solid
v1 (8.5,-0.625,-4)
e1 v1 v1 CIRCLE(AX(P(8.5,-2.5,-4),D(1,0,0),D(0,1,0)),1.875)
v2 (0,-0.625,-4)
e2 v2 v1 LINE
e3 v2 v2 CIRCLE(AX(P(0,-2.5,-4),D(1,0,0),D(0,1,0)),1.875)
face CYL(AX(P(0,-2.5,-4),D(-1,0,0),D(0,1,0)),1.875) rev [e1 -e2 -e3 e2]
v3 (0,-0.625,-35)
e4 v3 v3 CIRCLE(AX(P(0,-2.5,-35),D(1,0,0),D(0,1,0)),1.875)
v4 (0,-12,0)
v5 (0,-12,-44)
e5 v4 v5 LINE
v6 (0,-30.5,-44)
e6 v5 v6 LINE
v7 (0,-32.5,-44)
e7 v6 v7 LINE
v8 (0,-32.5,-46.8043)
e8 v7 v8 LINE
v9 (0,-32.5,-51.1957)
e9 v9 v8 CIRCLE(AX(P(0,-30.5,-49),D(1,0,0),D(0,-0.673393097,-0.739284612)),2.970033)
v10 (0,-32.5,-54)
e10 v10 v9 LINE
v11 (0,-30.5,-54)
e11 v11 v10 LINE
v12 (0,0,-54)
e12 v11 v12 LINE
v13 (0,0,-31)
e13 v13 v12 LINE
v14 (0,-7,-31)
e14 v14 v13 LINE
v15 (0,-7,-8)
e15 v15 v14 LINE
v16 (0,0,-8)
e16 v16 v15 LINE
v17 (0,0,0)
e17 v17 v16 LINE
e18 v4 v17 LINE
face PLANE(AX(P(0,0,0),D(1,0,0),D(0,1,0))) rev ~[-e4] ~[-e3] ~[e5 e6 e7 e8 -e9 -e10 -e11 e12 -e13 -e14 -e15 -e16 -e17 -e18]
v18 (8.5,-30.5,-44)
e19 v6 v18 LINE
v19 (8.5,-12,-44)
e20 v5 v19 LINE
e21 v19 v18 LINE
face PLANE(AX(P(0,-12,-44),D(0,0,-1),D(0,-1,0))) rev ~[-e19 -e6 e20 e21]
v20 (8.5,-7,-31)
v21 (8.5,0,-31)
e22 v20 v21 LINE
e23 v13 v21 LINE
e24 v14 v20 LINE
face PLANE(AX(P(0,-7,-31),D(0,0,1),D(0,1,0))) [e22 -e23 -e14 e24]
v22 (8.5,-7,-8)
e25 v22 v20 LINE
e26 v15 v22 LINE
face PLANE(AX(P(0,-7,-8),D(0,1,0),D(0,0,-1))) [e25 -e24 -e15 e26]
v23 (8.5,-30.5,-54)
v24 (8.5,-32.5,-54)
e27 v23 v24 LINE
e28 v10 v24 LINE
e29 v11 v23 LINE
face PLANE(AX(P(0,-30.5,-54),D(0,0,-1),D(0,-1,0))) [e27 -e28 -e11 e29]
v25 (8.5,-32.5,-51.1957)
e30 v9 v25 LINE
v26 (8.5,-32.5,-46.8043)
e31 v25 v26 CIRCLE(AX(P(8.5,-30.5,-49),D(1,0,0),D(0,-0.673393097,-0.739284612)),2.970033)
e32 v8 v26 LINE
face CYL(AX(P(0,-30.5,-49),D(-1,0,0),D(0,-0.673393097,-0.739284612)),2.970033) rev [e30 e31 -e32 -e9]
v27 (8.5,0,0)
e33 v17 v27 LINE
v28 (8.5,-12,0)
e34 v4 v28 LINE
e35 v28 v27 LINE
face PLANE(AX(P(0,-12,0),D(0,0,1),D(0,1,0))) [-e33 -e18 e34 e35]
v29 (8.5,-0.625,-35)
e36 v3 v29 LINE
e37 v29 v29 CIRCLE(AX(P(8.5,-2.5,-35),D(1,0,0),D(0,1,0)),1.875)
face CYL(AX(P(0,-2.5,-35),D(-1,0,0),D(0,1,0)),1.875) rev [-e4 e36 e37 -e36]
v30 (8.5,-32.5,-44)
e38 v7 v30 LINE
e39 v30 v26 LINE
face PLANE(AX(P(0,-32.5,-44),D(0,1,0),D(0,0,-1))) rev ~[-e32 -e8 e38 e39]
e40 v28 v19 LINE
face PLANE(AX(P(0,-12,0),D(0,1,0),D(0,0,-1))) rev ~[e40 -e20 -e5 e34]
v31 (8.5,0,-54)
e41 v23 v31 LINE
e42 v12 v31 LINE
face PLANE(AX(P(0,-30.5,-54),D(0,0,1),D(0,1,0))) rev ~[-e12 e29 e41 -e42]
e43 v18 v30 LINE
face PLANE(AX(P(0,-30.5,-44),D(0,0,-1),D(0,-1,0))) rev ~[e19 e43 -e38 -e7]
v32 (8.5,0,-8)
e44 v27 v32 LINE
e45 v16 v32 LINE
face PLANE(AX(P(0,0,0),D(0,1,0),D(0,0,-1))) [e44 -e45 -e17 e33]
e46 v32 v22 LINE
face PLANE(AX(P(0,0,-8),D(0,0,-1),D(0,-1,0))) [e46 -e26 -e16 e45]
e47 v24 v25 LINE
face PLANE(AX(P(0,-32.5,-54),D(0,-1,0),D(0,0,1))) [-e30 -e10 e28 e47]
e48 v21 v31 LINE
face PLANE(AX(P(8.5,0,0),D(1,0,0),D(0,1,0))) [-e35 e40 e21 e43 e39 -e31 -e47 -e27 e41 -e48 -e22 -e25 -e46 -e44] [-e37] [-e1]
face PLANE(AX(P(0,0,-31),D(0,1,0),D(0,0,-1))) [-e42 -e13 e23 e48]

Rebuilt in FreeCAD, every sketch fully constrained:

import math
import FreeCAD as App
import Part
import Sketcher

V = App.Vector
Q = App.Units.Quantity

doc = App.newDocument("Part")
body = doc.addObject("PartDesign::Body", "Body")

# Sketch on YZ plane
sketch1 = body.newObject("Sketcher::SketchObject", "Sketch")
sketch1.AttachmentSupport = (doc.getObject("YZ_Plane"), [""])
sketch1.MapMode = "FlatFace"
sketch1.addGeometry([
    Part.LineSegment(V(0, -8, 0), V(0, 0, 0)),  # 0
    Part.LineSegment(V(0, 0, 0), V(-12, 0, 0)),  # 1
    Part.LineSegment(V(-12, 0, 0), V(-12, -44, 0)),  # 2
    Part.LineSegment(V(-12, -44, 0), V(-32.5, -44, 0)),  # 3
    Part.LineSegment(V(-32.5, -44, 0), V(-32.5, -46.8, 0)),  # 4
    Part.ArcOfCircle(Part.Circle(V(-30.5, -49, 0), V(0, 0, 1), 3), math.radians(-132), math.radians(132)),  # 5
    Part.LineSegment(V(-32.5, -51.2, 0), V(-32.5, -54, 0)),  # 6
    Part.LineSegment(V(-32.5, -54, 0), V(0, -54, 0)),  # 7
    Part.LineSegment(V(0, -54, 0), V(0, -31, 0)),  # 8
    Part.LineSegment(V(0, -31, 0), V(-7, -31, 0)),  # 9
    Part.LineSegment(V(-7, -31, 0), V(-7, -8, 0)),  # 10
    Part.LineSegment(V(-7, -8, 0), V(0, -8, 0)),  # 11
    Part.Circle(V(-2.5, -35, 0), V(0, 0, 1), 1.9),  # 12
    Part.Circle(V(-2.5, -4, 0), V(0, 0, 1), 1.9),  # 13
], False)
sketch1.addConstraint([
    Sketcher.Constraint("Coincident", 0, 2, 1, 1),
    Sketcher.Constraint("Coincident", 1, 2, 2, 1),
    Sketcher.Constraint("Coincident", 2, 2, 3, 1),
    Sketcher.Constraint("Coincident", 3, 2, 4, 1),
    Sketcher.Constraint("Coincident", 4, 2, 5, 2),
    Sketcher.Constraint("Coincident", 5, 1, 6, 1),
    Sketcher.Constraint("Coincident", 6, 2, 7, 1),
    Sketcher.Constraint("Coincident", 7, 2, 8, 1),
    Sketcher.Constraint("Coincident", 8, 2, 9, 1),
    Sketcher.Constraint("Coincident", 9, 2, 10, 1),
    Sketcher.Constraint("Coincident", 10, 2, 11, 1),
    Sketcher.Constraint("Coincident", 11, 2, 0, 1),
    Sketcher.Constraint("Vertical", 0),
    Sketcher.Constraint("Horizontal", 1),
    Sketcher.Constraint("Vertical", 2),
    Sketcher.Constraint("Horizontal", 3),
    Sketcher.Constraint("Vertical", 4),
    Sketcher.Constraint("Vertical", 6),
    Sketcher.Constraint("Horizontal", 7),
    Sketcher.Constraint("Vertical", 8),
    Sketcher.Constraint("Horizontal", 9),
    Sketcher.Constraint("Vertical", 10),
    Sketcher.Constraint("Horizontal", 11),
    Sketcher.Constraint("Coincident", 0, 2, -1, 1),
    Sketcher.Constraint("Equal", 12, 13),
    Sketcher.Constraint("PointOnObject", 7, 2, -2),
    Sketcher.Constraint("Vertical", 12, 3, 13, 3),
    Sketcher.Constraint("Vertical", 4, 2, 5, 1),
    Sketcher.Constraint("Equal", 4, 6),
    Sketcher.Constraint("Equal", 8, 10),
    Sketcher.Constraint("Diameter", 12, Q("3.75 mm")),
    Sketcher.Constraint("DistanceX", 9, 2, 9, 1, Q("7 mm")),
    Sketcher.Constraint("DistanceY", 0, 1, 0, 2, Q("8 mm")),
    Sketcher.Constraint("DistanceY", 8, 1, 8, 2, Q("23 mm")),
    Sketcher.Constraint("DistanceY", 13, 3, -1, 1, Q("4 mm")),
    Sketcher.Constraint("DistanceX", 3, 2, 5, 3, Q("2 mm")),
    Sketcher.Constraint("DistanceY", 6, 2, 3, 2, Q("10 mm")),
    Sketcher.Constraint("DistanceY", 12, 3, 8, 2, Q("4 mm")),
    Sketcher.Constraint("DistanceX", 5, 3, -1, 1, Q("30.5 mm")),
    Sketcher.Constraint("DistanceX", 12, 3, -1, 1, Q("2.5 mm")),
    Sketcher.Constraint("DistanceX", 1, 2, 1, 1, Q("12 mm")),
    Sketcher.Constraint("Radius", 5, Q("2.97 mm")),
])
pad1 = body.newObject("PartDesign::Pad", "Pad")
pad1.Profile = sketch1
pad1.Length = 8.5

doc.recompute()
